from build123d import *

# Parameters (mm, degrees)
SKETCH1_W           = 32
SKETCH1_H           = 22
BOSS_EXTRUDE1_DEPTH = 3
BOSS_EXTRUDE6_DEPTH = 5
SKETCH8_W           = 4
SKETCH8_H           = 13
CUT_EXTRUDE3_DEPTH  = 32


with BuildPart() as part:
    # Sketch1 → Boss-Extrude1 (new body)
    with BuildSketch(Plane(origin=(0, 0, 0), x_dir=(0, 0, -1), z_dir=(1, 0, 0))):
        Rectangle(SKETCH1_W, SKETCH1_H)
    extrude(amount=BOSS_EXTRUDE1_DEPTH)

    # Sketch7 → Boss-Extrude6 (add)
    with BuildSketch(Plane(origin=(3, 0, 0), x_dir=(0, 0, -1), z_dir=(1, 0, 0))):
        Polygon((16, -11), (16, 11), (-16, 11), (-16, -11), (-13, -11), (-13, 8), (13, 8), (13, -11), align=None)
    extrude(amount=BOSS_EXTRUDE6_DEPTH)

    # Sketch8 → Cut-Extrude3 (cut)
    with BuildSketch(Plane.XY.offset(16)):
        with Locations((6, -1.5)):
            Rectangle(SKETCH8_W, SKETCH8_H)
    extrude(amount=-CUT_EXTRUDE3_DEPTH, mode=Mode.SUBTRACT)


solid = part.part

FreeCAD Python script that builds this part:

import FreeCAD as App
import Part
import Sketcher

V = App.Vector
Q = App.Units.Quantity


def add_polygon(sketch, points):
    """Adds a closed chain of lines whose ends are joined by coincident constraints."""
    first, n = sketch.GeometryCount, len(points)
    for a, b in zip(points, points[1:] + points[:1]):
        sketch.addGeometry(Part.LineSegment(App.Vector(*a, 0), App.Vector(*b, 0)), False)
    for i in range(n):
        sketch.addConstraint(Sketcher.Constraint("Coincident", first + i, 2, first + (i + 1) % n, 1))

doc = App.newDocument("Part")
body = doc.addObject("PartDesign::Body", "Body")

# Sketch on YZ plane
sketch1 = doc.addObject("Sketcher::SketchObject", "Sketch")
body.addObject(sketch1)
sketch1.AttachmentSupport = (doc.YZ_Plane, [""])
sketch1.MapMode = "FlatFace"
add_polygon(sketch1, [(11, 16), (-11, 16), (-11, -16), (11, -16)])  # lines 0-3
sketch1.addConstraint([
    Sketcher.Constraint("Horizontal", 0),
    Sketcher.Constraint("Vertical", 1),
    Sketcher.Constraint("Horizontal", 2),
    Sketcher.Constraint("Vertical", 3),
    Sketcher.Constraint("Symmetric", 0, 2, 2, 2, -1, 1),
    Sketcher.Constraint("DistanceX", 0, 2, 0, 1, Q("22 mm")),
    Sketcher.Constraint("DistanceY", 1, 2, 1, 1, Q("32 mm")),
])
pad1 = doc.addObject("PartDesign::Pad", "Pad")
body.addObject(pad1)
pad1.Profile = sketch1
pad1.Length = 3

# Sketch on YZ plane
sketch2 = doc.addObject("Sketcher::SketchObject", "Sketch001")
body.addObject(sketch2)
sketch2.AttachmentSupport = (doc.YZ_Plane, [""])
sketch2.MapMode = "FlatFace"
sketch2.AttachmentOffset = App.Placement(V(0, 0, 3), App.Rotation())
add_polygon(sketch2, [(-11, -16), (11, -16), (11, 16), (-11, 16), (-11, 13), (8, 13), (8, -13), (-11, -13)])  # lines 0-7
sketch2.addConstraint([
    Sketcher.Constraint("Horizontal", 0),
    Sketcher.Constraint("Vertical", 1),
    Sketcher.Constraint("Horizontal", 2),
    Sketcher.Constraint("Vertical", 3),
    Sketcher.Constraint("Horizontal", 4),
    Sketcher.Constraint("Vertical", 5),
    Sketcher.Constraint("Horizontal", 6),
    Sketcher.Constraint("Vertical", 7),
    Sketcher.Constraint("Symmetric", 0, 2, 2, 2, -1, 1),
    Sketcher.Constraint("Symmetric", 3, 2, 6, 2, -1),
    Sketcher.Constraint("DistanceX", 0, 1, 0, 2, Q("22 mm")),
    Sketcher.Constraint("DistanceX", 4, 1, 4, 2, Q("19 mm")),
    Sketcher.Constraint("DistanceY", 1, 1, 1, 2, Q("32 mm")),
    Sketcher.Constraint("DistanceY", 3, 2, 3, 1, Q("3 mm")),
])
pad2 = doc.addObject("PartDesign::Pad", "Pad001")
body.addObject(pad2)
pad2.Profile = sketch2
pad2.Length = 5

# Sketch on XY plane
sketch3 = doc.addObject("Sketcher::SketchObject", "Sketch002")
body.addObject(sketch3)
sketch3.AttachmentSupport = (doc.XY_Plane, [""])
sketch3.MapMode = "FlatFace"
sketch3.AttachmentOffset = App.Placement(V(0, 0, 16), App.Rotation())
add_polygon(sketch3, [(4, 5), (4, -8), (8, -8), (8, 5)])  # lines 0-3
sketch3.addConstraint([
    Sketcher.Constraint("Vertical", 0),
    Sketcher.Constraint("Horizontal", 1),
    Sketcher.Constraint("Vertical", 2),
    Sketcher.Constraint("Horizontal", 3),
    Sketcher.Constraint("DistanceX", 1, 1, 1, 2, Q("4 mm")),
    Sketcher.Constraint("DistanceY", 0, 2, 0, 1, Q("13 mm")),
    Sketcher.Constraint("DistanceX", -1, 1, 0, 2, Q("4 mm")),
    Sketcher.Constraint("DistanceY", 0, 2, -1, 1, Q("8 mm")),
])
pocket1 = doc.addObject("PartDesign::Pocket", "Pocket")
body.addObject(pocket1)
pocket1.Profile = sketch3
pocket1.Length = 32

doc.recompute()
